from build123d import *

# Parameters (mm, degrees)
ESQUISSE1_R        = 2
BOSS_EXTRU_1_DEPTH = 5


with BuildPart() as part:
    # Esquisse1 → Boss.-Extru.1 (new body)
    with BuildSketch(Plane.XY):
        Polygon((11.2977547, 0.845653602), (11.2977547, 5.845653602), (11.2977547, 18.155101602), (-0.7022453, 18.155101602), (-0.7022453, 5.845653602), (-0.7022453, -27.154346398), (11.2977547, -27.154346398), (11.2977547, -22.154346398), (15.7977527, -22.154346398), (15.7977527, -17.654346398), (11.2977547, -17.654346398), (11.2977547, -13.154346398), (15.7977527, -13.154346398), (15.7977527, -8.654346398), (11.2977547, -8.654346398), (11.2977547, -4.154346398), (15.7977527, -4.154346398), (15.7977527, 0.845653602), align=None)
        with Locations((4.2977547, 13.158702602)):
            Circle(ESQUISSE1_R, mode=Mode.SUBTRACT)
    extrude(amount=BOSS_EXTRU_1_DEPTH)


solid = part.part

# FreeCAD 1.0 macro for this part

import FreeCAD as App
import Part
import Sketcher
from FreeCAD import Vector
Q = App.Units.Quantity

doc = App.newDocument("Part")
body = doc.addObject("PartDesign::Body", "Body")

sketch1 = body.newObject("Sketcher::SketchObject", "Sketch")
sketch1.AttachmentSupport = (doc.getObject("XY_Plane"), [""])
sketch1.MapMode = "FlatFace"
sketch1.addGeometry(Part.LineSegment(Vector(11.297755, 0.845654, 0), Vector(11.297755, 18.155102, 0)), False)
sketch1.addGeometry(Part.LineSegment(Vector(11.297755, 18.155102, 0), Vector(-0.702245, 18.155102, 0)), False)
sketch1.addGeometry(Part.LineSegment(Vector(-0.702245, 18.155102, 0), Vector(-0.702245, -27.154346, 0)), False)
sketch1.addGeometry(Part.LineSegment(Vector(-0.702245, -27.154346, 0), Vector(11.297755, -27.154346, 0)), False)
sketch1.addGeometry(Part.LineSegment(Vector(11.297755, -27.154346, 0), Vector(11.297755, -22.154346, 0)), False)
sketch1.addGeometry(Part.LineSegment(Vector(11.297755, -22.154346, 0), Vector(15.797753, -22.154346, 0)), False)
sketch1.addGeometry(Part.LineSegment(Vector(15.797753, -22.154346, 0), Vector(15.797753, -17.654346, 0)), False)
sketch1.addGeometry(Part.LineSegment(Vector(15.797753, -17.654346, 0), Vector(11.297755, -17.654346, 0)), False)
sketch1.addGeometry(Part.LineSegment(Vector(11.297755, -17.654346, 0), Vector(11.297755, -13.154346, 0)), False)
sketch1.addGeometry(Part.LineSegment(Vector(11.297755, -13.154346, 0), Vector(15.797753, -13.154346, 0)), False)
sketch1.addGeometry(Part.LineSegment(Vector(15.797753, -13.154346, 0), Vector(15.797753, -8.654346, 0)), False)
sketch1.addGeometry(Part.LineSegment(Vector(15.797753, -8.654346, 0), Vector(11.297755, -8.654346, 0)), False)
sketch1.addGeometry(Part.LineSegment(Vector(11.297755, -8.654346, 0), Vector(11.297755, -4.154346, 0)), False)
sketch1.addGeometry(Part.LineSegment(Vector(11.297755, -4.154346, 0), Vector(15.797753, -4.154346, 0)), False)
sketch1.addGeometry(Part.LineSegment(Vector(15.797753, -4.154346, 0), Vector(15.797753, 0.845654, 0)), False)
sketch1.addGeometry(Part.LineSegment(Vector(15.797753, 0.845654, 0), Vector(11.297755, 0.845654, 0)), False)
sketch1.addGeometry(Part.Circle(Vector(4.297755, 13.158703, 0), Vector(0, 0, 1), 2), False)
sketch1.addConstraint(Sketcher.Constraint("Coincident", 0, 2, 1, 1))
sketch1.addConstraint(Sketcher.Constraint("Coincident", 1, 2, 2, 1))
sketch1.addConstraint(Sketcher.Constraint("Coincident", 2, 2, 3, 1))
sketch1.addConstraint(Sketcher.Constraint("Coincident", 3, 2, 4, 1))
sketch1.addConstraint(Sketcher.Constraint("Coincident", 4, 2, 5, 1))
sketch1.addConstraint(Sketcher.Constraint("Coincident", 5, 2, 6, 1))
sketch1.addConstraint(Sketcher.Constraint("Coincident", 6, 2, 7, 1))
sketch1.addConstraint(Sketcher.Constraint("Coincident", 7, 2, 8, 1))
sketch1.addConstraint(Sketcher.Constraint("Coincident", 8, 2, 9, 1))
sketch1.addConstraint(Sketcher.Constraint("Coincident", 9, 2, 10, 1))
sketch1.addConstraint(Sketcher.Constraint("Coincident", 10, 2, 11, 1))
sketch1.addConstraint(Sketcher.Constraint("Coincident", 11, 2, 12, 1))
sketch1.addConstraint(Sketcher.Constraint("Coincident", 12, 2, 13, 1))
sketch1.addConstraint(Sketcher.Constraint("Coincident", 13, 2, 14, 1))
sketch1.addConstraint(Sketcher.Constraint("Coincident", 14, 2, 15, 1))
sketch1.addConstraint(Sketcher.Constraint("Coincident", 15, 2, 0, 1))
sketch1.addConstraint(Sketcher.Constraint("Vertical", 0))
sketch1.addConstraint(Sketcher.Constraint("Horizontal", 1))
sketch1.addConstraint(Sketcher.Constraint("Vertical", 2))
sketch1.addConstraint(Sketcher.Constraint("Horizontal", 3))
sketch1.addConstraint(Sketcher.Constraint("Vertical", 4))
sketch1.addConstraint(Sketcher.Constraint("Horizontal", 5))
sketch1.addConstraint(Sketcher.Constraint("Vertical", 6))
sketch1.addConstraint(Sketcher.Constraint("Horizontal", 7))
sketch1.addConstraint(Sketcher.Constraint("Vertical", 8))
sketch1.addConstraint(Sketcher.Constraint("Horizontal", 9))
sketch1.addConstraint(Sketcher.Constraint("Vertical", 10))
sketch1.addConstraint(Sketcher.Constraint("Horizontal", 11))
sketch1.addConstraint(Sketcher.Constraint("Vertical", 12))
sketch1.addConstraint(Sketcher.Constraint("Horizontal", 13))
sketch1.addConstraint(Sketcher.Constraint("Vertical", 14))
sketch1.addConstraint(Sketcher.Constraint("Horizontal", 15))
sketch1.addConstraint(Sketcher.Constraint("Vertical", 0, 2, 3, 2))
sketch1.addConstraint(Sketcher.Constraint("Vertical", 4, 2, 7, 2))
sketch1.addConstraint(Sketcher.Constraint("Vertical", 6, 2, 9, 2))
sketch1.addConstraint(Sketcher.Constraint("Vertical", 8, 2, 11, 2))
sketch1.addConstraint(Sketcher.Constraint("Vertical", 10, 2, 13, 2))
sketch1.addConstraint(Sketcher.Constraint("Equal", 6, 8))
sketch1.addConstraint(Sketcher.Constraint("Equal", 8, 10))
sketch1.addConstraint(Sketcher.Constraint("Equal", 10, 12))
sketch1.addConstraint(Sketcher.Constraint("Equal", 4, 14))
sketch1.addConstraint(Sketcher.Constraint("Diameter", 16, Q("4 mm")))
sketch1.addConstraint(Sketcher.Constraint("DistanceX", 1, 2, 1, 1, Q("12 mm")))
sketch1.addConstraint(Sketcher.Constraint("DistanceY", 4, 1, 4, 2, Q("5 mm")))
sketch1.addConstraint(Sketcher.Constraint("DistanceY", 6, 1, 6, 2, Q("4.5 mm")))
sketch1.addConstraint(Sketcher.Constraint("DistanceX", 16, 3, 0, 2, Q("7 mm")))
sketch1.addConstraint(Sketcher.Constraint("DistanceX", 2, 2, 5, 2, Q("16.499998 mm")))
sketch1.addConstraint(Sketcher.Constraint("DistanceY", 0, 1, 0, 2, Q("17.309448 mm")))
sketch1.addConstraint(Sketcher.Constraint("DistanceY", -1, 1, 0, 2, Q("18.155102 mm")))
sketch1.addConstraint(Sketcher.Constraint("DistanceY", 16, 3, 0, 2, Q("4.996399 mm")))
sketch1.addConstraint(Sketcher.Constraint("DistanceX", -1, 1, 16, 3, Q("4.297755 mm")))
pad1 = body.newObject("PartDesign::Pad", "Pad")
pad1.Profile = sketch1
pad1.Length = 5

doc.recompute()
